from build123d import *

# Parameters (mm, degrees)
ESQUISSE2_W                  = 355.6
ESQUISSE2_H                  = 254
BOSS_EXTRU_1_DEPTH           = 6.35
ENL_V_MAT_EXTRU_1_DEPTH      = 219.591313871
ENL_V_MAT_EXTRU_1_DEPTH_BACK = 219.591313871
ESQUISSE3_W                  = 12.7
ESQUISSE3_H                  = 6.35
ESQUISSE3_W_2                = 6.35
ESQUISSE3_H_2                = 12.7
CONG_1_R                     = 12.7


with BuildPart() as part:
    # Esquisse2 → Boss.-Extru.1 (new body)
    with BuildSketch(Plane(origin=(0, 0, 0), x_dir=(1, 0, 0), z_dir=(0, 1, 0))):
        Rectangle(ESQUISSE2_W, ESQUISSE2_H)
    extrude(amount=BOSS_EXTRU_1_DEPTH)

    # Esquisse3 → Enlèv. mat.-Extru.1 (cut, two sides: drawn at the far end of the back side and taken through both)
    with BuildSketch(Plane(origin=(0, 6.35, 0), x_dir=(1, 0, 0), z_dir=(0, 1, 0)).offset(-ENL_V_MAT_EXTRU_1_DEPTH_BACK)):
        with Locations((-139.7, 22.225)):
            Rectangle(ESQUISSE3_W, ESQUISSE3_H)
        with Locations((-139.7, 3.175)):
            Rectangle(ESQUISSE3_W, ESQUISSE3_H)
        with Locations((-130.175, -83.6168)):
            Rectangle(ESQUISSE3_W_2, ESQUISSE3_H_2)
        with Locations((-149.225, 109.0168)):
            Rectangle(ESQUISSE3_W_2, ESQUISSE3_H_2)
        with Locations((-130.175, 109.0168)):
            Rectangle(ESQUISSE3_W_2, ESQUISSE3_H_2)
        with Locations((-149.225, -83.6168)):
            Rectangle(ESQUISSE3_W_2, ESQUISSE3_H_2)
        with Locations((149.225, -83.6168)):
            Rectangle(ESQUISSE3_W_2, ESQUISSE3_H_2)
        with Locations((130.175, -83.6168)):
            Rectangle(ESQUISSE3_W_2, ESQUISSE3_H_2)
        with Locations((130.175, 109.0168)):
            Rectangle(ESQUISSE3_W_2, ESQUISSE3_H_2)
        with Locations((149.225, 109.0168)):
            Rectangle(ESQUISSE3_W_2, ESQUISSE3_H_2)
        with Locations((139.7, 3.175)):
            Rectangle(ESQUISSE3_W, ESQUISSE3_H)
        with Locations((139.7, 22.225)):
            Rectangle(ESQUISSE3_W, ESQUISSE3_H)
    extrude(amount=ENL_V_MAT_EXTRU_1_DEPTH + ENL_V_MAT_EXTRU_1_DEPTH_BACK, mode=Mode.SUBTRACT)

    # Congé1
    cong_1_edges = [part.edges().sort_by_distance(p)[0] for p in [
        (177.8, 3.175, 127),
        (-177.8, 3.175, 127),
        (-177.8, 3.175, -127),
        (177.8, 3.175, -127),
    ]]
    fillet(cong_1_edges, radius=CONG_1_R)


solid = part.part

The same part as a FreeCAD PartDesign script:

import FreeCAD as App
import Part
import Sketcher
Q = App.Units.Quantity


def edges_at(feature, points):
    """Names of the edges that pass closest to the given points."""
    edges = feature.Shape.Edges
    near = lambda p: min(range(len(edges)), key=lambda i: edges[i].distToShape(Part.Vertex(*p))[0])
    return sorted({f"Edge{near(p) + 1}" for p in points})

doc = App.newDocument("Part")
body = doc.addObject("PartDesign::Body", "Body")

sketch1 = body.newObject("Sketcher::SketchObject", "Sketch")
sketch1.AttachmentSupport = (doc.getObject("XZ_Plane"), [""])
sketch1.MapMode = "FlatFace"
sketch1.addGeometry(Part.LineSegment(App.Vector(-178, -127, 0), App.Vector(-178, 127, 0)), False)
sketch1.addGeometry(Part.LineSegment(App.Vector(-178, 127, 0), App.Vector(178, 127, 0)), False)
sketch1.addGeometry(Part.LineSegment(App.Vector(178, 127, 0), App.Vector(178, -127, 0)), False)
sketch1.addGeometry(Part.LineSegment(App.Vector(178, -127, 0), App.Vector(-178, -127, 0)), False)
sketch1.addConstraint(Sketcher.Constraint("Coincident", 0, 2, 1, 1))
sketch1.addConstraint(Sketcher.Constraint("Coincident", 1, 2, 2, 1))
sketch1.addConstraint(Sketcher.Constraint("Coincident", 2, 2, 3, 1))
sketch1.addConstraint(Sketcher.Constraint("Coincident", 3, 2, 0, 1))
sketch1.addConstraint(Sketcher.Constraint("Vertical", 0))
sketch1.addConstraint(Sketcher.Constraint("Horizontal", 1))
sketch1.addConstraint(Sketcher.Constraint("Vertical", 2))
sketch1.addConstraint(Sketcher.Constraint("Horizontal", 3))
sketch1.addConstraint(Sketcher.Constraint("Symmetric", 0, 2, 2, 2, -1, 1))
sketch1.addConstraint(Sketcher.Constraint("DistanceX", 1, 1, 1, 2, Q("14 in")))
sketch1.addConstraint(Sketcher.Constraint("DistanceY", 0, 1, 0, 2, Q("10 in")))
pad1 = body.newObject("PartDesign::Pad", "Pad")
pad1.Profile = sketch1
pad1.Length = Q("0.25 in")
pad1.Reversed = True

sketch2 = body.newObject("Sketcher::SketchObject", "Sketch001")
sketch2.AttachmentSupport = (doc.getObject("XZ_Plane"), [""])
sketch2.MapMode = "FlatFace"
sketch2.AttachmentOffset = App.Placement(App.Vector(0, 0, -0.25 * 25.4), App.Rotation())
sketch2.addGeometry(Part.LineSegment(App.Vector(-146, -25, 0), App.Vector(-146, -19, 0)), False)
sketch2.addGeometry(Part.LineSegment(App.Vector(-146, -19, 0), App.Vector(-133, -19, 0)), False)
sketch2.addGeometry(Part.LineSegment(App.Vector(-133, -19, 0), App.Vector(-133, -25, 0)), False)
sketch2.addGeometry(Part.LineSegment(App.Vector(-133, -25, 0), App.Vector(-146, -25, 0)), False)
sketch2.addGeometry(Part.LineSegment(App.Vector(-146, -6, 0), App.Vector(-146, 0, 0)), False)
sketch2.addGeometry(Part.LineSegment(App.Vector(-146, 0, 0), App.Vector(-133, 0, 0)), False)
sketch2.addGeometry(Part.LineSegment(App.Vector(-133, 0, 0), App.Vector(-133, -6, 0)), False)
sketch2.addGeometry(Part.LineSegment(App.Vector(-133, -6, 0), App.Vector(-146, -6, 0)), False)
sketch2.addGeometry(Part.LineSegment(App.Vector(-133, 77, 0), App.Vector(-133, 90, 0)), False)
sketch2.addGeometry(Part.LineSegment(App.Vector(-133, 90, 0), App.Vector(-127, 90, 0)), False)
sketch2.addGeometry(Part.LineSegment(App.Vector(-127, 90, 0), App.Vector(-127, 77, 0)), False)
sketch2.addGeometry(Part.LineSegment(App.Vector(-127, 77, 0), App.Vector(-133, 77, 0)), False)
sketch2.addGeometry(Part.LineSegment(App.Vector(-152, -115, 0), App.Vector(-152, -103, 0)), False)
sketch2.addGeometry(Part.LineSegment(App.Vector(-152, -103, 0), App.Vector(-146, -103, 0)), False)
sketch2.addGeometry(Part.LineSegment(App.Vector(-146, -103, 0), App.Vector(-146, -115, 0)), False)
sketch2.addGeometry(Part.LineSegment(App.Vector(-146, -115, 0), App.Vector(-152, -115, 0)), False)
sketch2.addGeometry(Part.LineSegment(App.Vector(-133, -115, 0), App.Vector(-133, -103, 0)), False)
sketch2.addGeometry(Part.LineSegment(App.Vector(-133, -103, 0), App.Vector(-127, -103, 0)), False)
sketch2.addGeometry(Part.LineSegment(App.Vector(-127, -103, 0), App.Vector(-127, -115, 0)), False)
sketch2.addGeometry(Part.LineSegment(App.Vector(-127, -115, 0), App.Vector(-133, -115, 0)), False)
sketch2.addGeometry(Part.LineSegment(App.Vector(-152, 77, 0), App.Vector(-152, 90, 0)), False)
sketch2.addGeometry(Part.LineSegment(App.Vector(-152, 90, 0), App.Vector(-146, 90, 0)), False)
sketch2.addGeometry(Part.LineSegment(App.Vector(-146, 90, 0), App.Vector(-146, 77, 0)), False)
sketch2.addGeometry(Part.LineSegment(App.Vector(-146, 77, 0), App.Vector(-152, 77, 0)), False)
sketch2.addGeometry(Part.LineSegment(App.Vector(146, 77, 0), App.Vector(146, 90, 0)), False)
sketch2.addGeometry(Part.LineSegment(App.Vector(146, 90, 0), App.Vector(152, 90, 0)), False)
sketch2.addGeometry(Part.LineSegment(App.Vector(152, 90, 0), App.Vector(152, 77, 0)), False)
sketch2.addGeometry(Part.LineSegment(App.Vector(152, 77, 0), App.Vector(146, 77, 0)), False)
sketch2.addGeometry(Part.LineSegment(App.Vector(127, 77, 0), App.Vector(127, 90, 0)), False)
sketch2.addGeometry(Part.LineSegment(App.Vector(127, 90, 0), App.Vector(133, 90, 0)), False)
sketch2.addGeometry(Part.LineSegment(App.Vector(133, 90, 0), App.Vector(133, 77, 0)), False)
sketch2.addGeometry(Part.LineSegment(App.Vector(133, 77, 0), App.Vector(127, 77, 0)), False)
sketch2.addGeometry(Part.LineSegment(App.Vector(127, -115, 0), App.Vector(127, -103, 0)), False)
sketch2.addGeometry(Part.LineSegment(App.Vector(127, -103, 0), App.Vector(133, -103, 0)), False)
sketch2.addGeometry(Part.LineSegment(App.Vector(133, -103, 0), App.Vector(133, -115, 0)), False)
sketch2.addGeometry(Part.LineSegment(App.Vector(133, -115, 0), App.Vector(127, -115, 0)), False)
sketch2.addGeometry(Part.LineSegment(App.Vector(146, -115, 0), App.Vector(146, -103, 0)), False)
sketch2.addGeometry(Part.LineSegment(App.Vector(146, -103, 0), App.Vector(152, -103, 0)), False)
sketch2.addGeometry(Part.LineSegment(App.Vector(152, -103, 0), App.Vector(152, -115, 0)), False)
sketch2.addGeometry(Part.LineSegment(App.Vector(152, -115, 0), App.Vector(146, -115, 0)), False)
sketch2.addGeometry(Part.LineSegment(App.Vector(133, -6, 0), App.Vector(133, 0, 0)), False)
sketch2.addGeometry(Part.LineSegment(App.Vector(133, 0, 0), App.Vector(146, 0, 0)), False)
sketch2.addGeometry(Part.LineSegment(App.Vector(146, 0, 0), App.Vector(146, -6, 0)), False)
sketch2.addGeometry(Part.LineSegment(App.Vector(146, -6, 0), App.Vector(133, -6, 0)), False)
sketch2.addGeometry(Part.LineSegment(App.Vector(133, -25, 0), App.Vector(133, -19, 0)), False)
sketch2.addGeometry(Part.LineSegment(App.Vector(133, -19, 0), App.Vector(146, -19, 0)), False)
sketch2.addGeometry(Part.LineSegment(App.Vector(146, -19, 0), App.Vector(146, -25, 0)), False)
sketch2.addGeometry(Part.LineSegment(App.Vector(146, -25, 0), App.Vector(133, -25, 0)), False)
sketch2.addConstraint(Sketcher.Constraint("Coincident", 0, 2, 1, 1))
sketch2.addConstraint(Sketcher.Constraint("Coincident", 1, 2, 2, 1))
sketch2.addConstraint(Sketcher.Constraint("Coincident", 2, 2, 3, 1))
sketch2.addConstraint(Sketcher.Constraint("Coincident", 3, 2, 0, 1))
sketch2.addConstraint(Sketcher.Constraint("Coincident", 4, 2, 5, 1))
sketch2.addConstraint(Sketcher.Constraint("Coincident", 5, 2, 6, 1))
sketch2.addConstraint(Sketcher.Constraint("Coincident", 6, 2, 7, 1))
sketch2.addConstraint(Sketcher.Constraint("Coincident", 7, 2, 4, 1))
sketch2.addConstraint(Sketcher.Constraint("Coincident", 8, 2, 9, 1))
sketch2.addConstraint(Sketcher.Constraint("Coincident", 9, 2, 10, 1))
sketch2.addConstraint(Sketcher.Constraint("Coincident", 10, 2, 11, 1))
sketch2.addConstraint(Sketcher.Constraint("Coincident", 11, 2, 8, 1))
sketch2.addConstraint(Sketcher.Constraint("Coincident", 12, 2, 13, 1))
sketch2.addConstraint(Sketcher.Constraint("Coincident", 13, 2, 14, 1))
sketch2.addConstraint(Sketcher.Constraint("Coincident", 14, 2, 15, 1))
sketch2.addConstraint(Sketcher.Constraint("Coincident", 15, 2, 12, 1))
sketch2.addConstraint(Sketcher.Constraint("Coincident", 16, 2, 17, 1))
sketch2.addConstraint(Sketcher.Constraint("Coincident", 17, 2, 18, 1))
sketch2.addConstraint(Sketcher.Constraint("Coincident", 18, 2, 19, 1))
sketch2.addConstraint(Sketcher.Constraint("Coincident", 19, 2, 16, 1))
sketch2.addConstraint(Sketcher.Constraint("Coincident", 20, 2, 21, 1))
sketch2.addConstraint(Sketcher.Constraint("Coincident", 21, 2, 22, 1))
sketch2.addConstraint(Sketcher.Constraint("Coincident", 22, 2, 23, 1))
sketch2.addConstraint(Sketcher.Constraint("Coincident", 23, 2, 20, 1))
sketch2.addConstraint(Sketcher.Constraint("Coincident", 24, 2, 25, 1))
sketch2.addConstraint(Sketcher.Constraint("Coincident", 25, 2, 26, 1))
sketch2.addConstraint(Sketcher.Constraint("Coincident", 26, 2, 27, 1))
sketch2.addConstraint(Sketcher.Constraint("Coincident", 27, 2, 24, 1))
sketch2.addConstraint(Sketcher.Constraint("Coincident", 28, 2, 29, 1))
sketch2.addConstraint(Sketcher.Constraint("Coincident", 29, 2, 30, 1))
sketch2.addConstraint(Sketcher.Constraint("Coincident", 30, 2, 31, 1))
sketch2.addConstraint(Sketcher.Constraint("Coincident", 31, 2, 28, 1))
sketch2.addConstraint(Sketcher.Constraint("Coincident", 32, 2, 33, 1))
sketch2.addConstraint(Sketcher.Constraint("Coincident", 33, 2, 34, 1))
sketch2.addConstraint(Sketcher.Constraint("Coincident", 34, 2, 35, 1))
sketch2.addConstraint(Sketcher.Constraint("Coincident", 35, 2, 32, 1))
sketch2.addConstraint(Sketcher.Constraint("Coincident", 36, 2, 37, 1))
sketch2.addConstraint(Sketcher.Constraint("Coincident", 37, 2, 38, 1))
sketch2.addConstraint(Sketcher.Constraint("Coincident", 38, 2, 39, 1))
sketch2.addConstraint(Sketcher.Constraint("Coincident", 39, 2, 36, 1))
sketch2.addConstraint(Sketcher.Constraint("Coincident", 40, 2, 41, 1))
sketch2.addConstraint(Sketcher.Constraint("Coincident", 41, 2, 42, 1))
sketch2.addConstraint(Sketcher.Constraint("Coincident", 42, 2, 43, 1))
sketch2.addConstraint(Sketcher.Constraint("Coincident", 43, 2, 40, 1))
sketch2.addConstraint(Sketcher.Constraint("Coincident", 44, 2, 45, 1))
sketch2.addConstraint(Sketcher.Constraint("Coincident", 45, 2, 46, 1))
sketch2.addConstraint(Sketcher.Constraint("Coincident", 46, 2, 47, 1))
sketch2.addConstraint(Sketcher.Constraint("Coincident", 47, 2, 44, 1))
sketch2.addConstraint(Sketcher.Constraint("Vertical", 0))
sketch2.addConstraint(Sketcher.Constraint("Horizontal", 1))
sketch2.addConstraint(Sketcher.Constraint("Vertical", 2))
sketch2.addConstraint(Sketcher.Constraint("Horizontal", 3))
sketch2.addConstraint(Sketcher.Constraint("Vertical", 4))
sketch2.addConstraint(Sketcher.Constraint("Horizontal", 5))
sketch2.addConstraint(Sketcher.Constraint("Vertical", 6))
sketch2.addConstraint(Sketcher.Constraint("Horizontal", 7))
sketch2.addConstraint(Sketcher.Constraint("Vertical", 8))
sketch2.addConstraint(Sketcher.Constraint("Horizontal", 9))
sketch2.addConstraint(Sketcher.Constraint("Vertical", 10))
sketch2.addConstraint(Sketcher.Constraint("Horizontal", 11))
sketch2.addConstraint(Sketcher.Constraint("Vertical", 12))
sketch2.addConstraint(Sketcher.Constraint("Horizontal", 13))
sketch2.addConstraint(Sketcher.Constraint("Vertical", 14))
sketch2.addConstraint(Sketcher.Constraint("Horizontal", 15))
sketch2.addConstraint(Sketcher.Constraint("Vertical", 16))
sketch2.addConstraint(Sketcher.Constraint("Horizontal", 17))
sketch2.addConstraint(Sketcher.Constraint("Vertical", 18))
sketch2.addConstraint(Sketcher.Constraint("Horizontal", 19))
sketch2.addConstraint(Sketcher.Constraint("Vertical", 20))
sketch2.addConstraint(Sketcher.Constraint("Horizontal", 21))
sketch2.addConstraint(Sketcher.Constraint("Vertical", 22))
sketch2.addConstraint(Sketcher.Constraint("Horizontal", 23))
sketch2.addConstraint(Sketcher.Constraint("Vertical", 24))
sketch2.addConstraint(Sketcher.Constraint("Horizontal", 25))
sketch2.addConstraint(Sketcher.Constraint("Vertical", 26))
sketch2.addConstraint(Sketcher.Constraint("Horizontal", 27))
sketch2.addConstraint(Sketcher.Constraint("Vertical", 28))
sketch2.addConstraint(Sketcher.Constraint("Horizontal", 29))
sketch2.addConstraint(Sketcher.Constraint("Vertical", 30))
sketch2.addConstraint(Sketcher.Constraint("Horizontal", 31))
sketch2.addConstraint(Sketcher.Constraint("Vertical", 32))
sketch2.addConstraint(Sketcher.Constraint("Horizontal", 33))
sketch2.addConstraint(Sketcher.Constraint("Vertical", 34))
sketch2.addConstraint(Sketcher.Constraint("Horizontal", 35))
sketch2.addConstraint(Sketcher.Constraint("Vertical", 36))
sketch2.addConstraint(Sketcher.Constraint("Horizontal", 37))
sketch2.addConstraint(Sketcher.Constraint("Vertical", 38))
sketch2.addConstraint(Sketcher.Constraint("Horizontal", 39))
sketch2.addConstraint(Sketcher.Constraint("Vertical", 40))
sketch2.addConstraint(Sketcher.Constraint("Horizontal", 41))
sketch2.addConstraint(Sketcher.Constraint("Vertical", 42))
sketch2.addConstraint(Sketcher.Constraint("Horizontal", 43))
sketch2.addConstraint(Sketcher.Constraint("Vertical", 44))
sketch2.addConstraint(Sketcher.Constraint("Horizontal", 45))
sketch2.addConstraint(Sketcher.Constraint("Vertical", 46))
sketch2.addConstraint(Sketcher.Constraint("Horizontal", 47))
sketch2.addConstraint(Sketcher.Constraint("Symmetric", 5, 2, 40, 2, -1, 1))
sketch2.addConstraint(Sketcher.Constraint("Symmetric", 21, 2, 24, 2, -2))
sketch2.addConstraint(Sketcher.Constraint("Symmetric", 23, 2, 26, 2, -2))
sketch2.addConstraint(Sketcher.Constraint("Symmetric", 9, 2, 28, 2, -2))
sketch2.addConstraint(Sketcher.Constraint("Symmetric", 11, 2, 30, 2, -2))
sketch2.addConstraint(Sketcher.Constraint("Symmetric", 17, 2, 32, 2, -2))
sketch2.addConstraint(Sketcher.Constraint("Symmetric", 19, 2, 34, 2, -2))
sketch2.addConstraint(Sketcher.Constraint("Symmetric", 13, 2, 36, 2, -2))
sketch2.addConstraint(Sketcher.Constraint("Symmetric", 15, 2, 38, 2, -2))
sketch2.addConstraint(Sketcher.Constraint("Symmetric", 4, 2, 41, 2, -2))
sketch2.addConstraint(Sketcher.Constraint("Symmetric", 1, 2, 44, 2, -2))
sketch2.addConstraint(Sketcher.Constraint("Symmetric", 3, 2, 46, 2, -2))
sketch2.addConstraint(Sketcher.Constraint("Horizontal", 13, 2, 16, 2))
sketch2.addConstraint(Sketcher.Constraint("Horizontal", 15, 2, 18, 2))
sketch2.addConstraint(Sketcher.Constraint("Horizontal", 9, 2, 20, 2))
sketch2.addConstraint(Sketcher.Constraint("Horizontal", 11, 2, 22, 2))
sketch2.addConstraint(Sketcher.Constraint("Horizontal", 7, 2, 42, 2))
sketch2.addConstraint(Sketcher.Constraint("Vertical", 3, 2, 4, 2))
sketch2.addConstraint(Sketcher.Constraint("Vertical", 2, 2, 5, 2))
sketch2.addConstraint(Sketcher.Constraint("Vertical", 6, 2, 8, 2))
sketch2.addConstraint(Sketcher.Constraint("Vertical", 7, 2, 13, 2))
sketch2.addConstraint(Sketcher.Constraint("Vertical", 11, 2, 16, 2))
sketch2.addConstraint(Sketcher.Constraint("Vertical", 10, 2, 17, 2))
sketch2.addConstraint(Sketcher.Constraint("Vertical", 15, 2, 20, 2))
sketch2.addConstraint(Sketcher.Constraint("Vertical", 14, 2, 21, 2))
sketch2.addConstraint(Sketcher.Constraint("Equal", 11, 13))
sketch2.addConstraint(Sketcher.Constraint("Equal", 39, 0))
sketch2.addConstraint(Sketcher.Constraint("Equal", 2, 4))
sketch2.addConstraint(Sketcher.Constraint("Equal", 47, 8))
sketch2.addConstraint(Sketcher.Constraint("Equal", 10, 12))
sketch2.addConstraint(Sketcher.Constraint("DistanceX", 1, 1, 1, 2, Q("0.5 in")))
sketch2.addConstraint(Sketcher.Constraint("DistanceY", 2, 2, -1, 1, Q("1 in")))
sketch2.addConstraint(Sketcher.Constraint("DistanceX", 9, 2, -1, 1, Q("5 in")))
sketch2.addConstraint(Sketcher.Constraint("DistanceX", 12, 2, -1, 1, Q("6 in")))
sketch2.addConstraint(Sketcher.Constraint("DistanceY", -1, 1, 8, 2, Q("3.542 in")))
sketch2.addConstraint(Sketcher.Constraint("DistanceY", 12, 2, -1, 1, Q("4.042 in")))
pocket1 = body.newObject("PartDesign::Pocket", "Pocket")
pocket1.Profile = sketch2
pocket1.Type = "ThroughAll"
pocket1.Midplane = True
doc.recompute()

fillet = body.newObject("PartDesign::Fillet", "Fillet")
fillet.Base = (pocket1, edges_at(pocket1, [
    (177.8, 3.175, 127),
    (-177.8, 3.175, 127),
    (-177.8, 3.175, -127),
    (177.8, 3.175, -127),
]))
fillet.Radius = Q("0.5 in")

doc.recompute()
